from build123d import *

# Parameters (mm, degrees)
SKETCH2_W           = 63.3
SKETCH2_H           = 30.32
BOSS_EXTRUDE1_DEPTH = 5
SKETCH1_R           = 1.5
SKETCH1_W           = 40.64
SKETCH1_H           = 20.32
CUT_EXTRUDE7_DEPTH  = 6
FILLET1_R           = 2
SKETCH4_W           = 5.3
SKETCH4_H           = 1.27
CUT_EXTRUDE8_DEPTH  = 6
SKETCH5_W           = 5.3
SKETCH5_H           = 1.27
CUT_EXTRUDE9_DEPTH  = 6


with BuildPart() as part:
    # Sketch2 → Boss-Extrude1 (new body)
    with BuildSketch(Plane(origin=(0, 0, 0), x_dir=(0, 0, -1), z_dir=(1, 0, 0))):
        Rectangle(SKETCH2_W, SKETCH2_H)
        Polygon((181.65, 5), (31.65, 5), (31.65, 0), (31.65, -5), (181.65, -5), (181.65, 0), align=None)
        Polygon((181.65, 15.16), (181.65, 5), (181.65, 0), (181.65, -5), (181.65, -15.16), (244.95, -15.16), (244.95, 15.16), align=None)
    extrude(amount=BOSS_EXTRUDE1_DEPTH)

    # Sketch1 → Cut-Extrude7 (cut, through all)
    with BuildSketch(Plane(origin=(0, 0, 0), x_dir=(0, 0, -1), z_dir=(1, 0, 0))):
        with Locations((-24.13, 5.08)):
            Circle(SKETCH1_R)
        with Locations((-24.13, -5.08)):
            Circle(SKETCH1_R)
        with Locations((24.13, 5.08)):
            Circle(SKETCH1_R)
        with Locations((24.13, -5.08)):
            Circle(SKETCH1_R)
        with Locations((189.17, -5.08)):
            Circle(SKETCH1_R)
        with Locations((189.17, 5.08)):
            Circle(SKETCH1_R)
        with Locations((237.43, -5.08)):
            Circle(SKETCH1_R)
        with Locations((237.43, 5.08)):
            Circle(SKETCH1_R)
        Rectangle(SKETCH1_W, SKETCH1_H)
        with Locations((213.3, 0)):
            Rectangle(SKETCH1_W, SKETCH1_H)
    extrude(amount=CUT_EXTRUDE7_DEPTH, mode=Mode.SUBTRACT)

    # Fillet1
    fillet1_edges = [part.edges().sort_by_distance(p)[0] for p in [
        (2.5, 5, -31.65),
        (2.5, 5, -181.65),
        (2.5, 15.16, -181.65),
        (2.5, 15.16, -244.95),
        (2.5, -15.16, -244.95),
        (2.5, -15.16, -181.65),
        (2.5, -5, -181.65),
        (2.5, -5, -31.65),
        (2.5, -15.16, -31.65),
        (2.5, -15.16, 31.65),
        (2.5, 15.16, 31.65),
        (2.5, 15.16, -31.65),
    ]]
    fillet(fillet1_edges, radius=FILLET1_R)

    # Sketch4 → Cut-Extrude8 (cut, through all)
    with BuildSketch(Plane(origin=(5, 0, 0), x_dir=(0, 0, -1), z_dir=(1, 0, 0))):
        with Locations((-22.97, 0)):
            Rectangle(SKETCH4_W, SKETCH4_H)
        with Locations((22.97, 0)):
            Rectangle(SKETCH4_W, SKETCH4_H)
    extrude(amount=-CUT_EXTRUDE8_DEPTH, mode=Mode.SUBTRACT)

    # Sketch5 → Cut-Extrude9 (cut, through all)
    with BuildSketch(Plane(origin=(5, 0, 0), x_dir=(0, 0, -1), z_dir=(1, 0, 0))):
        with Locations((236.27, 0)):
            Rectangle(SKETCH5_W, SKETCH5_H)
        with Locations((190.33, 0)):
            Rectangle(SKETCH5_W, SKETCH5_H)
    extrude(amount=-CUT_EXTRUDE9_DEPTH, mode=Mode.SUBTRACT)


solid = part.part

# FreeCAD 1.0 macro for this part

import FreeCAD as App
import Part
import Sketcher
from FreeCAD import Vector
Q = App.Units.Quantity


def edges_at(feature, points):
    """Names of the edges that pass closest to the given points."""
    edges = feature.Shape.Edges
    near = lambda p: min(range(len(edges)), key=lambda i: edges[i].distToShape(Part.Vertex(*p))[0])
    return sorted({f"Edge{near(p) + 1}" for p in points})

doc = App.newDocument("Part")
params = doc.addObject("Spreadsheet::Sheet", "Params")
for row, (alias, value) in enumerate([
    ("sketch1_height", "150 mm"),
    ("sketch1_height2", "63.3 mm"),
    ("sketch1_width", "30.32 mm"),
    ("pad1_length", "5 mm"),
    ("sketch2_diameter", "3 mm"),
    ("sketch2_width", "20.32 mm"),
    ("sketch2_height", "40.64 mm"),
    ("fillet_radius", "2 mm"),
    ("sketch3_height", "5.3 mm"),
    ("sketch3_width", "1.27 mm"),
    ("sketch4_height", "5.3 mm"),
    ("sketch4_width", "1.27 mm"),
], start=1):
    params.set(f"A{row}", alias)
    params.set(f"B{row}", "=" + value)
    params.setAlias(f"B{row}", alias)

body = doc.addObject("PartDesign::Body", "Body")

# Sketch on YZ plane
sketch1 = body.newObject("Sketcher::SketchObject", "Sketch")
sketch1.AttachmentSupport = (doc.getObject("YZ_Plane"), [""])
sketch1.MapMode = "FlatFace"
sketch1.addGeometry([
    Part.LineSegment(Vector(15, 32, 0), Vector(-15, 32, 0)),  # 0
    Part.LineSegment(Vector(-15, 32, 0), Vector(-15, -32, 0)),  # 1
    Part.LineSegment(Vector(-15, -32, 0), Vector(-5, -32, 0)),  # 2
    Part.LineSegment(Vector(-5, -32, 0), Vector(-5, -182, 0)),  # 3
    Part.LineSegment(Vector(-5, -182, 0), Vector(-15, -182, 0)),  # 4
    Part.LineSegment(Vector(-15, -182, 0), Vector(-15, -245, 0)),  # 5
    Part.LineSegment(Vector(-15, -245, 0), Vector(15, -245, 0)),  # 6
    Part.LineSegment(Vector(15, -245, 0), Vector(15, -182, 0)),  # 7
    Part.LineSegment(Vector(15, -182, 0), Vector(5, -182, 0)),  # 8
    Part.LineSegment(Vector(5, -182, 0), Vector(5, -32, 0)),  # 9
    Part.LineSegment(Vector(5, -32, 0), Vector(15, -32, 0)),  # 10
    Part.LineSegment(Vector(15, -32, 0), Vector(15, 32, 0)),  # 11
], False)
sketch1.addConstraint([
    Sketcher.Constraint("Coincident", 0, 2, 1, 1),
    Sketcher.Constraint("Coincident", 1, 2, 2, 1),
    Sketcher.Constraint("Coincident", 2, 2, 3, 1),
    Sketcher.Constraint("Coincident", 3, 2, 4, 1),
    Sketcher.Constraint("Coincident", 4, 2, 5, 1),
    Sketcher.Constraint("Coincident", 5, 2, 6, 1),
    Sketcher.Constraint("Coincident", 6, 2, 7, 1),
    Sketcher.Constraint("Coincident", 7, 2, 8, 1),
    Sketcher.Constraint("Coincident", 8, 2, 9, 1),
    Sketcher.Constraint("Coincident", 9, 2, 10, 1),
    Sketcher.Constraint("Coincident", 10, 2, 11, 1),
    Sketcher.Constraint("Coincident", 11, 2, 0, 1),
    Sketcher.Constraint("Horizontal", 0),
    Sketcher.Constraint("Vertical", 1),
    Sketcher.Constraint("Horizontal", 2),
    Sketcher.Constraint("Vertical", 3),
    Sketcher.Constraint("Horizontal", 4),
    Sketcher.Constraint("Vertical", 5),
    Sketcher.Constraint("Horizontal", 6),
    Sketcher.Constraint("Vertical", 7),
    Sketcher.Constraint("Horizontal", 8),
    Sketcher.Constraint("Vertical", 9),
    Sketcher.Constraint("Horizontal", 10),
    Sketcher.Constraint("Vertical", 11),
    Sketcher.Constraint("Symmetric", 0, 2, 10, 2, -1, 1),
    Sketcher.Constraint("Symmetric", 4, 2, 7, 2, -2),
    Sketcher.Constraint("Symmetric", 2, 2, 9, 2, -2),
    Sketcher.Constraint("Vertical", 1, 2, 4, 2),
    Sketcher.Constraint("Equal", 1, 5),
    Sketcher.Constraint("DistanceY", 3, 2, 3, 1, Q("150 mm")),
    Sketcher.Constraint("DistanceY", 1, 2, 1, 1, Q("63.3 mm")),
    Sketcher.Constraint("DistanceX", 2, 2, -1, 1, Q("5 mm")),
    Sketcher.Constraint("DistanceX", 0, 2, 0, 1, Q("30.32 mm")),
])
sketch1.setExpression("Constraints[29]", "Params.sketch1_height")
sketch1.setExpression("Constraints[30]", "Params.sketch1_height2")
sketch1.setExpression("Constraints[32]", "Params.sketch1_width")
pad1 = body.newObject("PartDesign::Pad", "Pad")
pad1.Profile = sketch1
pad1.setExpression("Length", "Params.pad1_length")

# Sketch on YZ plane
sketch2 = body.newObject("Sketcher::SketchObject", "Sketch001")
sketch2.AttachmentSupport = (doc.getObject("YZ_Plane"), [""])
sketch2.MapMode = "FlatFace"
sketch2.addGeometry([
    Part.Circle(Vector(5.1, 24.1, 0), Vector(0, 0, 1), 1.5),  # 0
    Part.Circle(Vector(-5.1, 24.1, 0), Vector(0, 0, 1), 1.5),  # 1
    Part.Circle(Vector(5.1, -24.1, 0), Vector(0, 0, 1), 1.5),  # 2
    Part.Circle(Vector(-5.1, -24.1, 0), Vector(0, 0, 1), 1.5),  # 3
    Part.Circle(Vector(-5.1, -189.2, 0), Vector(0, 0, 1), 1.5),  # 4
    Part.Circle(Vector(5.1, -189.2, 0), Vector(0, 0, 1), 1.5),  # 5
    Part.Circle(Vector(-5.1, -237.4, 0), Vector(0, 0, 1), 1.5),  # 6
    Part.Circle(Vector(5.1, -237.4, 0), Vector(0, 0, 1), 1.5),  # 7
    Part.LineSegment(Vector(10.2, 20.3, 0), Vector(-10.2, 20.3, 0)),  # 8
    Part.LineSegment(Vector(-10.2, 20.3, 0), Vector(-10.2, -20.3, 0)),  # 9
    Part.LineSegment(Vector(-10.2, -20.3, 0), Vector(10.2, -20.3, 0)),  # 10
    Part.LineSegment(Vector(10.2, -20.3, 0), Vector(10.2, 20.3, 0)),  # 11
    Part.LineSegment(Vector(10.2, -193, 0), Vector(-10.2, -193, 0)),  # 12
    Part.LineSegment(Vector(-10.2, -193, 0), Vector(-10.2, -233.6, 0)),  # 13
    Part.LineSegment(Vector(-10.2, -233.6, 0), Vector(10.2, -233.6, 0)),  # 14
    Part.LineSegment(Vector(10.2, -233.6, 0), Vector(10.2, -193, 0)),  # 15
], False)
sketch2.addConstraint([
    Sketcher.Constraint("Coincident", 8, 2, 9, 1),
    Sketcher.Constraint("Coincident", 9, 2, 10, 1),
    Sketcher.Constraint("Coincident", 10, 2, 11, 1),
    Sketcher.Constraint("Coincident", 11, 2, 8, 1),
    Sketcher.Constraint("Coincident", 12, 2, 13, 1),
    Sketcher.Constraint("Coincident", 13, 2, 14, 1),
    Sketcher.Constraint("Coincident", 14, 2, 15, 1),
    Sketcher.Constraint("Coincident", 15, 2, 12, 1),
    Sketcher.Constraint("Horizontal", 8),
    Sketcher.Constraint("Vertical", 9),
    Sketcher.Constraint("Horizontal", 10),
    Sketcher.Constraint("Vertical", 11),
    Sketcher.Constraint("Horizontal", 12),
    Sketcher.Constraint("Vertical", 13),
    Sketcher.Constraint("Horizontal", 14),
    Sketcher.Constraint("Vertical", 15),
    Sketcher.Constraint("Equal", 0, 1),
    Sketcher.Constraint("Equal", 1, 2),
    Sketcher.Constraint("Equal", 2, 3),
    Sketcher.Constraint("Equal", 3, 4),
    Sketcher.Constraint("Equal", 4, 5),
    Sketcher.Constraint("Equal", 5, 6),
    Sketcher.Constraint("Equal", 6, 7),
    Sketcher.Constraint("Symmetric", 1, 3, 2, 3, -1, 1),
    Sketcher.Constraint("Symmetric", 0, 3, 3, 3, -1, 1),
    Sketcher.Constraint("Symmetric", 8, 2, 10, 2, -1, 1),
    Sketcher.Constraint("Symmetric", 0, 3, 1, 3, -2),
    Sketcher.Constraint("Symmetric", 4, 3, 5, 3, -2),
    Sketcher.Constraint("Symmetric", 6, 3, 7, 3, -2),
    Sketcher.Constraint("Vertical", 3, 3, 4, 3),
    Sketcher.Constraint("Vertical", 4, 3, 6, 3),
    Sketcher.Constraint("Vertical", 9, 2, 12, 2),
    Sketcher.Constraint("Vertical", 11, 2, 14, 2),
    Sketcher.Constraint("Equal", 11, 13),
    Sketcher.Constraint("Diameter", 0, Q("3 mm")),
    Sketcher.Constraint("DistanceX", 8, 2, 8, 1, Q("20.32 mm")),
    Sketcher.Constraint("DistanceY", 9, 2, 9, 1, Q("40.64 mm")),
    Sketcher.Constraint("DistanceY", 4, 3, 1, 3, Q("213.3 mm")),
    Sketcher.Constraint("DistanceY", 6, 3, 3, 3, Q("213.3 mm")),
    Sketcher.Constraint("DistanceX", -1, 1, 0, 3, Q("5.08 mm")),
    Sketcher.Constraint("DistanceY", -1, 1, 0, 3, Q("24.13 mm")),
    Sketcher.Constraint("DistanceY", 12, 2, -1, 1, Q("192.98 mm")),
])
sketch2.setExpression("Constraints[34]", "Params.sketch2_diameter")
sketch2.setExpression("Constraints[35]", "Params.sketch2_width")
sketch2.setExpression("Constraints[36]", "Params.sketch2_height")
pocket1 = body.newObject("PartDesign::Pocket", "Pocket")
pocket1.Profile = sketch2
pocket1.Type = "ThroughAll"
pocket1.Reversed = True
doc.recompute()

fillet = body.newObject("PartDesign::Fillet", "Fillet")
fillet.Base = (pocket1, edges_at(pocket1, [
    (2.5, 5, -31.65),
    (2.5, 5, -181.65),
    (2.5, 15.16, -181.65),
    (2.5, 15.16, -244.95),
    (2.5, -15.16, -244.95),
    (2.5, -15.16, -181.65),
    (2.5, -5, -181.65),
    (2.5, -5, -31.65),
    (2.5, -15.16, -31.65),
    (2.5, -15.16, 31.65),
    (2.5, 15.16, 31.65),
    (2.5, 15.16, -31.65),
]))
fillet.setExpression("Radius", "Params.fillet_radius")

# Sketch on YZ plane
sketch3 = body.newObject("Sketcher::SketchObject", "Sketch002")
sketch3.AttachmentSupport = (doc.getObject("YZ_Plane"), [""])
sketch3.MapMode = "FlatFace"
sketch3.AttachmentOffset = App.Placement(Vector(0, 0, 5), App.Rotation())
sketch3.addGeometry([
    Part.LineSegment(Vector(0.6, 25.6, 0), Vector(-0.6, 25.6, 0)),  # 0
    Part.LineSegment(Vector(-0.6, 25.6, 0), Vector(-0.6, 20.3, 0)),  # 1
    Part.LineSegment(Vector(-0.6, 20.3, 0), Vector(0.6, 20.3, 0)),  # 2
    Part.LineSegment(Vector(0.6, 20.3, 0), Vector(0.6, 25.6, 0)),  # 3
    Part.LineSegment(Vector(0.6, -20.3, 0), Vector(-0.6, -20.3, 0)),  # 4
    Part.LineSegment(Vector(-0.6, -20.3, 0), Vector(-0.6, -25.6, 0)),  # 5
    Part.LineSegment(Vector(-0.6, -25.6, 0), Vector(0.6, -25.6, 0)),  # 6
    Part.LineSegment(Vector(0.6, -25.6, 0), Vector(0.6, -20.3, 0)),  # 7
], False)
sketch3.addConstraint([
    Sketcher.Constraint("Coincident", 0, 2, 1, 1),
    Sketcher.Constraint("Coincident", 1, 2, 2, 1),
    Sketcher.Constraint("Coincident", 2, 2, 3, 1),
    Sketcher.Constraint("Coincident", 3, 2, 0, 1),
    Sketcher.Constraint("Coincident", 4, 2, 5, 1),
    Sketcher.Constraint("Coincident", 5, 2, 6, 1),
    Sketcher.Constraint("Coincident", 6, 2, 7, 1),
    Sketcher.Constraint("Coincident", 7, 2, 4, 1),
    Sketcher.Constraint("Horizontal", 0),
    Sketcher.Constraint("Vertical", 1),
    Sketcher.Constraint("Horizontal", 2),
    Sketcher.Constraint("Vertical", 3),
    Sketcher.Constraint("Horizontal", 4),
    Sketcher.Constraint("Vertical", 5),
    Sketcher.Constraint("Horizontal", 6),
    Sketcher.Constraint("Vertical", 7),
    Sketcher.Constraint("Symmetric", 2, 2, 4, 2, -1, 1),
    Sketcher.Constraint("Symmetric", 0, 2, 6, 2, -1, 1),
    Sketcher.Constraint("Vertical", 1, 2, 4, 2),
    Sketcher.Constraint("DistanceY", 1, 2, 1, 1, Q("5.3 mm")),
    Sketcher.Constraint("DistanceX", 0, 2, 0, 1, Q("1.27 mm")),
    Sketcher.Constraint("DistanceY", -1, 1, 0, 2, Q("25.62 mm")),
])
sketch3.setExpression("Constraints[19]", "Params.sketch3_height")
sketch3.setExpression("Constraints[20]", "Params.sketch3_width")
pocket2 = body.newObject("PartDesign::Pocket", "Pocket001")
pocket2.Profile = sketch3
pocket2.Type = "ThroughAll"

# Sketch on YZ plane
sketch4 = body.newObject("Sketcher::SketchObject", "Sketch003")
sketch4.AttachmentSupport = (doc.getObject("YZ_Plane"), [""])
sketch4.MapMode = "FlatFace"
sketch4.AttachmentOffset = App.Placement(Vector(0, 0, 5), App.Rotation())
sketch4.addGeometry([
    Part.LineSegment(Vector(0.6, -233.6, 0), Vector(-0.6, -233.6, 0)),  # 0
    Part.LineSegment(Vector(-0.6, -233.6, 0), Vector(-0.6, -238.9, 0)),  # 1
    Part.LineSegment(Vector(-0.6, -238.9, 0), Vector(0.6, -238.9, 0)),  # 2
    Part.LineSegment(Vector(0.6, -238.9, 0), Vector(0.6, -233.6, 0)),  # 3
    Part.LineSegment(Vector(0.6, -187.7, 0), Vector(-0.6, -187.7, 0)),  # 4
    Part.LineSegment(Vector(-0.6, -187.7, 0), Vector(-0.6, -193, 0)),  # 5
    Part.LineSegment(Vector(-0.6, -193, 0), Vector(0.6, -193, 0)),  # 6
    Part.LineSegment(Vector(0.6, -193, 0), Vector(0.6, -187.7, 0)),  # 7
], False)
sketch4.addConstraint([
    Sketcher.Constraint("Coincident", 0, 2, 1, 1),
    Sketcher.Constraint("Coincident", 1, 2, 2, 1),
    Sketcher.Constraint("Coincident", 2, 2, 3, 1),
    Sketcher.Constraint("Coincident", 3, 2, 0, 1),
    Sketcher.Constraint("Coincident", 4, 2, 5, 1),
    Sketcher.Constraint("Coincident", 5, 2, 6, 1),
    Sketcher.Constraint("Coincident", 6, 2, 7, 1),
    Sketcher.Constraint("Coincident", 7, 2, 4, 1),
    Sketcher.Constraint("Horizontal", 0),
    Sketcher.Constraint("Vertical", 1),
    Sketcher.Constraint("Horizontal", 2),
    Sketcher.Constraint("Vertical", 3),
    Sketcher.Constraint("Horizontal", 4),
    Sketcher.Constraint("Vertical", 5),
    Sketcher.Constraint("Horizontal", 6),
    Sketcher.Constraint("Vertical", 7),
    Sketcher.Constraint("Vertical", 1, 2, 4, 2),
    Sketcher.Constraint("Vertical", 3, 2, 6, 2),
    Sketcher.Constraint("Equal", 3, 5),
    Sketcher.Constraint("DistanceY", 1, 2, 1, 1, Q("5.3 mm")),
    Sketcher.Constraint("DistanceX", 0, 2, 0, 1, Q("1.27 mm")),
    Sketcher.Constraint("DistanceY", 0, 2, -1, 1, Q("233.62 mm")),
    Sketcher.Constraint("DistanceY", 4, 2, -1, 1, Q("187.68 mm")),
    Sketcher.Constraint("DistanceX", 0, 2, -1, 1, Q("0.635 mm")),
])
sketch4.setExpression("Constraints[19]", "Params.sketch4_height")
sketch4.setExpression("Constraints[20]", "Params.sketch4_width")
pocket3 = body.newObject("PartDesign::Pocket", "Pocket002")
pocket3.Profile = sketch4
pocket3.Type = "ThroughAll"

doc.recompute()
